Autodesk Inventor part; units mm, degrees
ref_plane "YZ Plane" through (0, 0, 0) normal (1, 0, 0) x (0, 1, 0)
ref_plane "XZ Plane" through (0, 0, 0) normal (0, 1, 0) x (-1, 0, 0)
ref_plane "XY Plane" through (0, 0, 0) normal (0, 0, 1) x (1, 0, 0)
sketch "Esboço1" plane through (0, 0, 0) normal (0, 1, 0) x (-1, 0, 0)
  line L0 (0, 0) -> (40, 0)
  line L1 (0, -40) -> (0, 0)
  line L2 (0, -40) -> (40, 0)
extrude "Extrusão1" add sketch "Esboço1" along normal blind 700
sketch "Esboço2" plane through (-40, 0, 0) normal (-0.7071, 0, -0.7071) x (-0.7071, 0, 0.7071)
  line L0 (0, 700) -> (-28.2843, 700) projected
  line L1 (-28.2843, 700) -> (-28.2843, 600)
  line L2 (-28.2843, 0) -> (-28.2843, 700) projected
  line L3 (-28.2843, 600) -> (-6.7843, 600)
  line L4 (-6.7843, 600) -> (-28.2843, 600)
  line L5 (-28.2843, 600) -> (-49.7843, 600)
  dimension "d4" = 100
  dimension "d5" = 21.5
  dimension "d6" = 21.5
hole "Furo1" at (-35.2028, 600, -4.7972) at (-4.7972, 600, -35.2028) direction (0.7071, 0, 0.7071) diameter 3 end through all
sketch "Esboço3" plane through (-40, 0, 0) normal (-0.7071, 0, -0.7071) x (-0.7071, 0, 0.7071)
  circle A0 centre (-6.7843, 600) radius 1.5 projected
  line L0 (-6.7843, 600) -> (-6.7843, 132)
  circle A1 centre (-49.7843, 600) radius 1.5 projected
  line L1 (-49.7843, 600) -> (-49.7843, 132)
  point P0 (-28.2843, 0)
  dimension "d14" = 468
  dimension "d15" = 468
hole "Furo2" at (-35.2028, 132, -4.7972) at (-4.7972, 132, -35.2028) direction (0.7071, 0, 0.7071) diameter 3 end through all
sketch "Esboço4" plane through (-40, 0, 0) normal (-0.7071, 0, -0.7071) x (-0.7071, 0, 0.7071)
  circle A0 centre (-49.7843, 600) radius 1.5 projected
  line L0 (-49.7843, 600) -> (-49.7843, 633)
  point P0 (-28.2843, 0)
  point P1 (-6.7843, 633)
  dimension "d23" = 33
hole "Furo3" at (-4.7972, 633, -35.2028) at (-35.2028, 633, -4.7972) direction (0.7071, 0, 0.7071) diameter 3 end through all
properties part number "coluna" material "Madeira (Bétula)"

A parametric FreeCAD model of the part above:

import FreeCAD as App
import Part
import Sketcher
Q = App.Units.Quantity

doc = App.newDocument("Part")
params = doc.addObject("Spreadsheet::Sheet", "Params")
for row, (alias, value) in enumerate([
    ("sketch1_width", "40 mm"),
    ("pad1_length", "700 mm"),
    ("sketch2_diameter", "3 mm"),
    ("hole_diameter", "3 mm"),
    ("sketch3_diameter", "3 mm"),
    ("hole2_diameter", "3 mm"),
    ("sketch4_diameter", "3 mm"),
    ("hole3_diameter", "3 mm"),
], start=1):
    params.set(f"A{row}", alias)
    params.set(f"B{row}", "=" + value)
    params.setAlias(f"B{row}", alias)

body = doc.addObject("PartDesign::Body", "Body")

# Sketch on XZ plane
sketch1 = body.newObject("Sketcher::SketchObject", "Sketch")
sketch1.AttachmentSupport = (doc.getObject("XZ_Plane"), [""])
sketch1.MapMode = "FlatFace"
sketch1.addGeometry([
    Part.LineSegment(App.Vector(-40, 0, 0), App.Vector(0, 0, 0)),
    Part.LineSegment(App.Vector(0, 0, 0), App.Vector(0, -40, 0)),
    Part.LineSegment(App.Vector(0, -40, 0), App.Vector(-40, 0, 0)),
], False)
sketch1.addConstraint([
    Sketcher.Constraint("Coincident", 0, 2, 1, 1),
    Sketcher.Constraint("Coincident", 1, 2, 2, 1),
    Sketcher.Constraint("Coincident", 2, 2, 0, 1),
    Sketcher.Constraint("Horizontal", 0),
    Sketcher.Constraint("Vertical", 1),
    Sketcher.Constraint("Coincident", 0, 2, -1, 1),
    Sketcher.Constraint("Equal", 0, 1),
    Sketcher.Constraint("DistanceX", 0, 1, 0, 2, Q("40 mm")),
])
sketch1.setExpression("Constraints[7]", "Params.sketch1_width")
pad1 = body.newObject("PartDesign::Pad", "Pad")
pad1.Profile = sketch1
pad1.setExpression("Length", "Params.pad1_length")
pad1.Reversed = True

# Sketch on an angled plane
sketch2 = body.newObject("Sketcher::SketchObject", "Sketch001")
sketch2.Placement = App.Placement(App.Vector(-20, 0, -20), App.Rotation(App.Vector(-0.707106781, 0, 0.707106781), App.Vector(0, 0.999999999, 0), App.Vector(-0.707106781, 0, -0.707106781), "ZXY"))
sketch2.addGeometry([
    Part.Circle(App.Vector(21.5, 600, 0), App.Vector(0, 0, 1), 1.5),
    Part.Circle(App.Vector(-21.5, 600, 0), App.Vector(0, 0, 1), 1.5),
], False)
sketch2.addConstraint([
    Sketcher.Constraint("Equal", 0, 1),
    Sketcher.Constraint("Symmetric", 0, 3, 1, 3, -2),
    Sketcher.Constraint("Diameter", 0, Q("3 mm")),
    Sketcher.Constraint("DistanceY", -1, 1, 0, 3, Q("600 mm")),
    Sketcher.Constraint("DistanceX", 1, 3, 0, 3, Q("43 mm")),
])
sketch2.setExpression("Constraints[2]", "Params.sketch2_diameter")
doc.recompute()
hole = body.newObject("PartDesign::Hole", "Hole")
hole.Profile = sketch2
hole.ThreadType = "None"
hole.setExpression("Diameter", "Params.hole_diameter")
hole.DepthType = "ThroughAll"

# Sketch on an angled plane
sketch3 = body.newObject("Sketcher::SketchObject", "Sketch002")
sketch3.Placement = App.Placement(App.Vector(-20, 0, -20), App.Rotation(App.Vector(-0.707106781, 0, 0.707106781), App.Vector(0, 0.999999999, 0), App.Vector(-0.707106781, 0, -0.707106781), "ZXY"))
sketch3.addGeometry([
    Part.Circle(App.Vector(21.5, 132, 0), App.Vector(0, 0, 1), 1.5),
    Part.Circle(App.Vector(-21.5, 132, 0), App.Vector(0, 0, 1), 1.5),
], False)
sketch3.addConstraint([
    Sketcher.Constraint("Equal", 0, 1),
    Sketcher.Constraint("Symmetric", 0, 3, 1, 3, -2),
    Sketcher.Constraint("Diameter", 0, Q("3 mm")),
    Sketcher.Constraint("DistanceY", -1, 1, 0, 3, Q("132 mm")),
    Sketcher.Constraint("DistanceX", 1, 3, 0, 3, Q("43 mm")),
])
sketch3.setExpression("Constraints[2]", "Params.sketch3_diameter")
doc.recompute()
hole2 = body.newObject("PartDesign::Hole", "Hole001")
hole2.Profile = sketch3
hole2.ThreadType = "None"
hole2.setExpression("Diameter", "Params.hole2_diameter")
hole2.DepthType = "ThroughAll"

# Sketch on an angled plane
sketch4 = body.newObject("Sketcher::SketchObject", "Sketch003")
sketch4.Placement = App.Placement(App.Vector(-20, 0, -20), App.Rotation(App.Vector(-0.707106781, 0, 0.707106781), App.Vector(0, 0.999999999, 0), App.Vector(-0.707106781, 0, -0.707106781), "ZXY"))
sketch4.addGeometry([
    Part.Circle(App.Vector(-21.5, 633, 0), App.Vector(0, 0, 1), 1.5),
    Part.Circle(App.Vector(21.5, 633, 0), App.Vector(0, 0, 1), 1.5),
], False)
sketch4.addConstraint([
    Sketcher.Constraint("Equal", 0, 1),
    Sketcher.Constraint("Symmetric", 0, 3, 1, 3, -2),
    Sketcher.Constraint("Diameter", 0, Q("3 mm")),
    Sketcher.Constraint("DistanceY", -1, 1, 0, 3, Q("633 mm")),
    Sketcher.Constraint("DistanceX", 0, 3, 1, 3, Q("43 mm")),
])
sketch4.setExpression("Constraints[2]", "Params.sketch4_diameter")
doc.recompute()
hole3 = body.newObject("PartDesign::Hole", "Hole002")
hole3.Profile = sketch4
hole3.ThreadType = "None"
hole3.setExpression("Diameter", "Params.hole3_diameter")
hole3.DepthType = "ThroughAll"

doc.recompute()
